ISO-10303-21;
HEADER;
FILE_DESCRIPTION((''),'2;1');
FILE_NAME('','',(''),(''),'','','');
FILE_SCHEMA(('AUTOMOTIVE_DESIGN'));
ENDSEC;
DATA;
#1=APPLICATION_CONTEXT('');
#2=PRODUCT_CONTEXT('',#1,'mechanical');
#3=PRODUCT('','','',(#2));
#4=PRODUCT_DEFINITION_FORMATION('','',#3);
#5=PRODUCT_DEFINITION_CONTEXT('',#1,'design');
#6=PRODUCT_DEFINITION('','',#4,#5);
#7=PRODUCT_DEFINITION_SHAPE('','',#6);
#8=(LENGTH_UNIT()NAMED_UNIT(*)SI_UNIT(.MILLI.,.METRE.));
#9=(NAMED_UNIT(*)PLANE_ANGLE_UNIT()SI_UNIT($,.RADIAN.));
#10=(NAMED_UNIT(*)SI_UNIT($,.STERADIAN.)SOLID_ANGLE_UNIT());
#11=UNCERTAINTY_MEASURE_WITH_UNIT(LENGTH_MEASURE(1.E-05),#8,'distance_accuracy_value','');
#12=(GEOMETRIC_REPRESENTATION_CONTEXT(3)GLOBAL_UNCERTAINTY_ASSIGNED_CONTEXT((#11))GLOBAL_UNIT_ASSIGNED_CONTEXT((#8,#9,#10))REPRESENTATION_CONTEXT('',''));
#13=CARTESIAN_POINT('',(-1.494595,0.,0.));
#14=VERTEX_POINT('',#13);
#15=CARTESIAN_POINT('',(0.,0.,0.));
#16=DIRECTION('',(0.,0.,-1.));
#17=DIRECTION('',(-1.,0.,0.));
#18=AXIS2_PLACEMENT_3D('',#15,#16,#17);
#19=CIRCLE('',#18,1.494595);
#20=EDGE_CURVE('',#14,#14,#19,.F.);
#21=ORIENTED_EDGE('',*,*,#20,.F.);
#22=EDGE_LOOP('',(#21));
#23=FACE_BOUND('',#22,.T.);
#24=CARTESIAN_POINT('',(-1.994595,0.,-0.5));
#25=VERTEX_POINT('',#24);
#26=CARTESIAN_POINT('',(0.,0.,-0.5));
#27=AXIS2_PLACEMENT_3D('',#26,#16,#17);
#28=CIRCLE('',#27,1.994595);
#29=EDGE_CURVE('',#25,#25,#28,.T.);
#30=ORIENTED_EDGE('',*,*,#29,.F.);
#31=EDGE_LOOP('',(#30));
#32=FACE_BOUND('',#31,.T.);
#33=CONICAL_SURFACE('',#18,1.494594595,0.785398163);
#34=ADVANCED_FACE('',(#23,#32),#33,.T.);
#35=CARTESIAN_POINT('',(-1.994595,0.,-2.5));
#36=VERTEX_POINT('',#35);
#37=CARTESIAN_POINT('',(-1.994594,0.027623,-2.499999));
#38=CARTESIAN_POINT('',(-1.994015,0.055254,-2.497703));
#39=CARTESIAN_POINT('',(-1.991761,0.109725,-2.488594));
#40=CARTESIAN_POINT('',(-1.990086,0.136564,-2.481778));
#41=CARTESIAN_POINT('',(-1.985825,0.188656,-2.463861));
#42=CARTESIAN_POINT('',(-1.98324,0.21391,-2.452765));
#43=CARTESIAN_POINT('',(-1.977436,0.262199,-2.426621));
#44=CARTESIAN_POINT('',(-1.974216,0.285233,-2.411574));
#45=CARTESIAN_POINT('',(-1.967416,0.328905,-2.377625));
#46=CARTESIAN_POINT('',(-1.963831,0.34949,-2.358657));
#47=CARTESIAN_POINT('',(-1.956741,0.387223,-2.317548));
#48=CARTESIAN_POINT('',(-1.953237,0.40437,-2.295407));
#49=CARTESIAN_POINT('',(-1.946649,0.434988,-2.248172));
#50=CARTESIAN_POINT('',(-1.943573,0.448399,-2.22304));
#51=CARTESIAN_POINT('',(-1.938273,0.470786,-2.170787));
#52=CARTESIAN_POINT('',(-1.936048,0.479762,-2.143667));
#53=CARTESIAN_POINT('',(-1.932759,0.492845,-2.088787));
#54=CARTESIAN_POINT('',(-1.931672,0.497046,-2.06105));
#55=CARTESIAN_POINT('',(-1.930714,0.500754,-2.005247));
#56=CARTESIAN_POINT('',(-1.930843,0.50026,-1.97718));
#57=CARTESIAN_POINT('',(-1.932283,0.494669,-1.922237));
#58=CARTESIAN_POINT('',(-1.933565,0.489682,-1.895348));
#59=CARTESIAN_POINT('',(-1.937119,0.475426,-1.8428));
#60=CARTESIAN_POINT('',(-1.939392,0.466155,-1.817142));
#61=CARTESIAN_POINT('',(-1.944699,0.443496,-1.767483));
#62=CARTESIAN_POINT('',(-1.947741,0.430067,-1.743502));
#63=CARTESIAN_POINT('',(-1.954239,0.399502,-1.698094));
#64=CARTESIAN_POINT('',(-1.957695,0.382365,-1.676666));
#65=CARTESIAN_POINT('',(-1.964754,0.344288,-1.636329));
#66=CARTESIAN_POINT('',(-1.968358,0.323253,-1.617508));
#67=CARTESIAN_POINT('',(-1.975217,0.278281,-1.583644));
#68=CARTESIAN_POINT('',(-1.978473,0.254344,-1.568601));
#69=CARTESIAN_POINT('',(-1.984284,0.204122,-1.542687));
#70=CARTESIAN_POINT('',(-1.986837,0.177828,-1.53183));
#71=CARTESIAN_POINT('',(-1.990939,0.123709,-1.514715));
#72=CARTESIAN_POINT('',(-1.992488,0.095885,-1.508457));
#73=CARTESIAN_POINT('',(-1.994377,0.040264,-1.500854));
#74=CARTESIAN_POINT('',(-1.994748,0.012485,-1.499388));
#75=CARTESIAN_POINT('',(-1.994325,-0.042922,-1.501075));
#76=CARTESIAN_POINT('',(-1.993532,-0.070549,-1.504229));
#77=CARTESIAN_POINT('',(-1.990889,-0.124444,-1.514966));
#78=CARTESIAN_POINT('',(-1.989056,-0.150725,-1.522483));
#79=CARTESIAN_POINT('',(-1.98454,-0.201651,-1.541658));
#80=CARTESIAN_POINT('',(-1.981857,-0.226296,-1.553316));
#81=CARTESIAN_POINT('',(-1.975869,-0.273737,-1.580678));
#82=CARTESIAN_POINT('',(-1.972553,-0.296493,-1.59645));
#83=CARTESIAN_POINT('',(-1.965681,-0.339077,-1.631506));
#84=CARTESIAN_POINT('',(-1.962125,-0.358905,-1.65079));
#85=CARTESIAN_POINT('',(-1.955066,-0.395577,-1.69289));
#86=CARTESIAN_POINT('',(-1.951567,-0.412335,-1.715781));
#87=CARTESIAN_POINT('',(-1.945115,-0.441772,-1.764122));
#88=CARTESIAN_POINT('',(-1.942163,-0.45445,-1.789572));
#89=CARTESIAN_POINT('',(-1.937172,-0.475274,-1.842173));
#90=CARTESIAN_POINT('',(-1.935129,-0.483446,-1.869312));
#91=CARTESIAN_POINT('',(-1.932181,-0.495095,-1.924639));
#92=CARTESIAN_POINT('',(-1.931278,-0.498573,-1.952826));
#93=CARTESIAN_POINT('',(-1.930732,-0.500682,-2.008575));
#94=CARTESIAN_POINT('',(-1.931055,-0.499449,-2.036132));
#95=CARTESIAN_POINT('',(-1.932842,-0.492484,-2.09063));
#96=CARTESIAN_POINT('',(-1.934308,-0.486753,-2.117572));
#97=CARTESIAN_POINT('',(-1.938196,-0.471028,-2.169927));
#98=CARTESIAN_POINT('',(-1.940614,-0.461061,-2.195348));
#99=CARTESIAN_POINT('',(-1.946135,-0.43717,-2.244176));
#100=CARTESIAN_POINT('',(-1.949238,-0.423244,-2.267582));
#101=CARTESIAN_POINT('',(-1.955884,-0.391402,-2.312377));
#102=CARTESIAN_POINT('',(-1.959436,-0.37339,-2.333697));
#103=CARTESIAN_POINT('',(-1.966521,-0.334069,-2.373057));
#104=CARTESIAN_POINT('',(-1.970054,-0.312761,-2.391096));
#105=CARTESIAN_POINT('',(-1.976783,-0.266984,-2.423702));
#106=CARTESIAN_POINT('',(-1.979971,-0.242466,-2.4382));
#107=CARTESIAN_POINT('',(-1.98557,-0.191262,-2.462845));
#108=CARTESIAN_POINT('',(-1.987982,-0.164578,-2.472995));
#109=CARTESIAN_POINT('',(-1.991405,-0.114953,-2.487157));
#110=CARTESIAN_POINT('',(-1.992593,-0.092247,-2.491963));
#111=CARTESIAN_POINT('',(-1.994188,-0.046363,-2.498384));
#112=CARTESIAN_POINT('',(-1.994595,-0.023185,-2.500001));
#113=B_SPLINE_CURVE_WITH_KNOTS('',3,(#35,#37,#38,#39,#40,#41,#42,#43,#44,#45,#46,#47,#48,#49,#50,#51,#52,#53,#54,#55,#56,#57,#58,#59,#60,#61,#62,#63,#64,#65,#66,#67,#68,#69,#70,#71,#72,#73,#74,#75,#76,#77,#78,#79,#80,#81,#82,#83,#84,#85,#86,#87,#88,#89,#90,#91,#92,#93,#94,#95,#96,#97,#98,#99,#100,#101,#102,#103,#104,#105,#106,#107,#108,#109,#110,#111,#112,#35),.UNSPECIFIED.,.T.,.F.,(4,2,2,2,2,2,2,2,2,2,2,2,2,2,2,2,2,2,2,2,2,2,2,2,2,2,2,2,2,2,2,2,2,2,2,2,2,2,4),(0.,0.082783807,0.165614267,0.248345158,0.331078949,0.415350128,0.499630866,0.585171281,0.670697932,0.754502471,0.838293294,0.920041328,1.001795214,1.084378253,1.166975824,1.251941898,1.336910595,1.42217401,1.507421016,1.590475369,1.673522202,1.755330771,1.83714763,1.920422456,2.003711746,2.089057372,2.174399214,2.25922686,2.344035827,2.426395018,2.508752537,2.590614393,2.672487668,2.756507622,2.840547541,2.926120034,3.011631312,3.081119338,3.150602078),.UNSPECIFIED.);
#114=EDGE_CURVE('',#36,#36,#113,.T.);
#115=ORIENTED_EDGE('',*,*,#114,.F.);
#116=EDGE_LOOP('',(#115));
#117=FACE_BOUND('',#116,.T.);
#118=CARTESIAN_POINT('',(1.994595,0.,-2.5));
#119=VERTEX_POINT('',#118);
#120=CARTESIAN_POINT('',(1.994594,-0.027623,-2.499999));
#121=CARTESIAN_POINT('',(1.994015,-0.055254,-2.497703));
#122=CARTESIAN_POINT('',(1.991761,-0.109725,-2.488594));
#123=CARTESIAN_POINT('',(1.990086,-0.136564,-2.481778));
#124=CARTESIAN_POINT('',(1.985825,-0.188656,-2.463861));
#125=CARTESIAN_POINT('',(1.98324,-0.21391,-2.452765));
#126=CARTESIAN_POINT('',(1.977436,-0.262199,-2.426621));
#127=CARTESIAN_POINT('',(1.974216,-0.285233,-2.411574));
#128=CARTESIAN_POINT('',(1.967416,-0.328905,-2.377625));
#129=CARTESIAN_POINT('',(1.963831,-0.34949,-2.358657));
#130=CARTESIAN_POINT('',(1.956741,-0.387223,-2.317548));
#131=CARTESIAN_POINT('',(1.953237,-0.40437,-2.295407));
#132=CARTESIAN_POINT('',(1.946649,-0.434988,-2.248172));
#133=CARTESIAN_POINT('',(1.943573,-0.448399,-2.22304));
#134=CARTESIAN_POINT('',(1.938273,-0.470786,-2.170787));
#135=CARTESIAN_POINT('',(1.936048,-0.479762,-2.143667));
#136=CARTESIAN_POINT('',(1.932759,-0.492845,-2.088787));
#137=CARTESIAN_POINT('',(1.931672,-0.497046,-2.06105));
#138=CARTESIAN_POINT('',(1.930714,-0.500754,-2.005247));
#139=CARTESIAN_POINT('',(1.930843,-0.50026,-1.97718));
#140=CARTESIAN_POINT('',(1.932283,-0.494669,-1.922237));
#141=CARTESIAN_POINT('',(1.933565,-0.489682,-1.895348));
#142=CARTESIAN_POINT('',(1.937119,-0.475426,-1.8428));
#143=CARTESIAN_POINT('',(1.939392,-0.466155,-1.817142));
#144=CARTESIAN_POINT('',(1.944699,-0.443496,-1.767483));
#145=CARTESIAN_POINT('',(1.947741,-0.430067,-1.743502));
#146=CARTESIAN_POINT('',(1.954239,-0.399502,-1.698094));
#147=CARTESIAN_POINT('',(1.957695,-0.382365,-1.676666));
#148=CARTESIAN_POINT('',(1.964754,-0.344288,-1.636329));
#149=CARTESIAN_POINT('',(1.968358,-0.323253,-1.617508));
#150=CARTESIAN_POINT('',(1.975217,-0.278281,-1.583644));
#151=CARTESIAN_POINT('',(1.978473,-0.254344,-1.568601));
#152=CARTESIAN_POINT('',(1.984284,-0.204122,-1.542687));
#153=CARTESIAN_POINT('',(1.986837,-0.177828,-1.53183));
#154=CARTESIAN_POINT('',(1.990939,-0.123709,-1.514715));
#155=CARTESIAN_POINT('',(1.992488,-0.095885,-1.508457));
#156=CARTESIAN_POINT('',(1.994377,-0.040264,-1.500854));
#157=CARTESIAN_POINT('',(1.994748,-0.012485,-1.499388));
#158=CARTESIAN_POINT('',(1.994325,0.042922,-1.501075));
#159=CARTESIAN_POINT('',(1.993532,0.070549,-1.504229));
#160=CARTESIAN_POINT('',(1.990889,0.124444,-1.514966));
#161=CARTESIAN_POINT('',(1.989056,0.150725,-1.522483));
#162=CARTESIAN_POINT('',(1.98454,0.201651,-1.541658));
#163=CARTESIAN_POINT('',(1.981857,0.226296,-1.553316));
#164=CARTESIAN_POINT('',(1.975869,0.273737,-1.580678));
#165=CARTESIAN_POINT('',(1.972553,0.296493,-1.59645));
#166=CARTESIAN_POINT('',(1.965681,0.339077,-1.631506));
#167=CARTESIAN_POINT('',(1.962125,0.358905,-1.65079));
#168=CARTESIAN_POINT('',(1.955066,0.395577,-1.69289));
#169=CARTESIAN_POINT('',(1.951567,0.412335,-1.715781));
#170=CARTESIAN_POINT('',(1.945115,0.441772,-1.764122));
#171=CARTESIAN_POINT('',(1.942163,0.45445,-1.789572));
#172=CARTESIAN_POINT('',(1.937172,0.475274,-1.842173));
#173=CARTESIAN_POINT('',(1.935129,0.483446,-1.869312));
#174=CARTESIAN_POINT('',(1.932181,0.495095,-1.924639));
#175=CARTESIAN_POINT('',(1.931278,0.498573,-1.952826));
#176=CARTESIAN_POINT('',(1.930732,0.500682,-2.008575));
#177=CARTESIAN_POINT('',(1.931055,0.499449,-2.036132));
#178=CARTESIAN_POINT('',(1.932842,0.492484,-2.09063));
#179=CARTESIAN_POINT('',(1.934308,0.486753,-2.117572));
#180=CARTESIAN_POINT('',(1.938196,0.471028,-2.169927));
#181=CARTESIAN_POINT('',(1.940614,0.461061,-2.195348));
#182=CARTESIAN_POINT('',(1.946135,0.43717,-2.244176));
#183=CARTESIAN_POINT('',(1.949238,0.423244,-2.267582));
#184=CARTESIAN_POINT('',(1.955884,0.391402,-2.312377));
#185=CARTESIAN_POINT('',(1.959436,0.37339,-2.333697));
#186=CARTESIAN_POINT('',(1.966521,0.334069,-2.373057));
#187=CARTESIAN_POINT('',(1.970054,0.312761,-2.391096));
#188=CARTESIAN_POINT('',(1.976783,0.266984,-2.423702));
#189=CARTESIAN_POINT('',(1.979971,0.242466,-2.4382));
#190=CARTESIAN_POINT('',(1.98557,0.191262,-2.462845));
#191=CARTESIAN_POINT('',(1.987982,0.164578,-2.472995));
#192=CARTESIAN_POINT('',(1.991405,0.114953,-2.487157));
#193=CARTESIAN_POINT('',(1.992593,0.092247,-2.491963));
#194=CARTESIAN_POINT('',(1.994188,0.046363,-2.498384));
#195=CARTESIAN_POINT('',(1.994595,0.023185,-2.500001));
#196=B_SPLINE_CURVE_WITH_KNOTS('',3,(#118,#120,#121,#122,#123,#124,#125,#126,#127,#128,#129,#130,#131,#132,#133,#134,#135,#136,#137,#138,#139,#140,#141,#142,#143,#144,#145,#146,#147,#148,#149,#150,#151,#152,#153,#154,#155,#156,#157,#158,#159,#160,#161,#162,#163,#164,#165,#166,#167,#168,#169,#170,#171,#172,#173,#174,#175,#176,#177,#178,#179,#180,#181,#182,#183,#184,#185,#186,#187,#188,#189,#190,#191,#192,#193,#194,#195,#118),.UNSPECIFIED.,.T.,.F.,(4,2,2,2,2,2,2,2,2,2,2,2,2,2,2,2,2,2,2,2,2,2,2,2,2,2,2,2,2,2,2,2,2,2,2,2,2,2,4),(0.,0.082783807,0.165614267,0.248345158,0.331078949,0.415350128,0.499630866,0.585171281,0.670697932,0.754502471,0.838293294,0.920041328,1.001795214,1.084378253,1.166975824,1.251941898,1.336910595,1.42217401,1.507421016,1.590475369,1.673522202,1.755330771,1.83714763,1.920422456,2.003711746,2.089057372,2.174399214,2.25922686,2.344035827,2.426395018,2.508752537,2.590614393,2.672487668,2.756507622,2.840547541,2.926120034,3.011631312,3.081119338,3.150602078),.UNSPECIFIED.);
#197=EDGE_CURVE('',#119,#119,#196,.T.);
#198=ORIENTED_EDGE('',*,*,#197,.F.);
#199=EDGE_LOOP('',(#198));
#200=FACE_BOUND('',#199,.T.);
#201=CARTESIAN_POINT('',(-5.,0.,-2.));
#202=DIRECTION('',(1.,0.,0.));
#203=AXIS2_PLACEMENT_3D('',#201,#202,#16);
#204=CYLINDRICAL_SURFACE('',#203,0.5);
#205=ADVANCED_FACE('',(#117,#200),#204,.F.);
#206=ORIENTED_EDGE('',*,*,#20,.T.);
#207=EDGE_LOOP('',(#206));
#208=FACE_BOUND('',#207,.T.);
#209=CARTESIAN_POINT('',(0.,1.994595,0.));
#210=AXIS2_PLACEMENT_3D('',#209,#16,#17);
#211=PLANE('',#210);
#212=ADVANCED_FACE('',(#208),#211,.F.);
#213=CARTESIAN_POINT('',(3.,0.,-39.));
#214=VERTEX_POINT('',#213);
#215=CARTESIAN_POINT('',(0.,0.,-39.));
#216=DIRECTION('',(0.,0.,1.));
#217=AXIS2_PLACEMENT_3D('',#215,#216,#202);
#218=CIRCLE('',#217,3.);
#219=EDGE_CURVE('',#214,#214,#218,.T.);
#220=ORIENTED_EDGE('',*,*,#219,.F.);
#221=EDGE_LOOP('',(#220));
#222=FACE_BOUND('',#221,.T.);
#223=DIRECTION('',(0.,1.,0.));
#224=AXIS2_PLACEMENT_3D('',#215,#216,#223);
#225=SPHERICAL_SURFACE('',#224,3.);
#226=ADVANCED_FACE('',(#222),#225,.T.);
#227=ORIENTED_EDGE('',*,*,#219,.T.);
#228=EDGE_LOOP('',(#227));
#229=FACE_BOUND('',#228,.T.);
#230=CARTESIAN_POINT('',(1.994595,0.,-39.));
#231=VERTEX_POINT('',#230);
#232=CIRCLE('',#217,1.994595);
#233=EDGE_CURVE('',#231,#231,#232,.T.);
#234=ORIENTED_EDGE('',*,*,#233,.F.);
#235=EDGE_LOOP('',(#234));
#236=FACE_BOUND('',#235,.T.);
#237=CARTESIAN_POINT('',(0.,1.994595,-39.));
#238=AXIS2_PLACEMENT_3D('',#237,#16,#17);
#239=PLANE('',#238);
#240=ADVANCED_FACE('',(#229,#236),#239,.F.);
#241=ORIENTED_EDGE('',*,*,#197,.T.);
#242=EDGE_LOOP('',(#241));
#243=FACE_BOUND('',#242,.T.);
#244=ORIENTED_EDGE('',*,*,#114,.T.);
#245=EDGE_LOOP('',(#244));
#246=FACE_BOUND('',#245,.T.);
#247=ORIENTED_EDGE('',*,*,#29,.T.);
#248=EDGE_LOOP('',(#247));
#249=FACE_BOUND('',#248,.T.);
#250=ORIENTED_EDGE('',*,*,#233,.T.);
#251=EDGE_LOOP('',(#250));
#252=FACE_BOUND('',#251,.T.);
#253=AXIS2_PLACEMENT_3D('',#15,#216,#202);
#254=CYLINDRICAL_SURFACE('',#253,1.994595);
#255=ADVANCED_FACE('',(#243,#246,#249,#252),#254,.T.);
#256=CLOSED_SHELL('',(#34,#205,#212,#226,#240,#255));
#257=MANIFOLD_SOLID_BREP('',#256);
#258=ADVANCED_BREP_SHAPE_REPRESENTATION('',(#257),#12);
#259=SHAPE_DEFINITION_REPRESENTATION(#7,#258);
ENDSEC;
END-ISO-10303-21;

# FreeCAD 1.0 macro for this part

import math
import FreeCAD as App
import Part
import Sketcher
Q = App.Units.Quantity


def edges_at(feature, points):
    """Names of the edges that pass closest to the given points."""
    edges = feature.Shape.Edges
    near = lambda p: min(range(len(edges)), key=lambda i: edges[i].distToShape(Part.Vertex(*p))[0])
    return sorted({f"Edge{near(p) + 1}" for p in points})

doc = App.newDocument("Part")
body = doc.addObject("PartDesign::Body", "Body")

# Sketch on YZ plane
sketch1 = body.newObject("Sketcher::SketchObject", "Sketch")
sketch1.AttachmentSupport = (doc.getObject("YZ_Plane"), [""])
sketch1.MapMode = "FlatFace"
sketch1.addGeometry(Part.LineSegment(App.Vector(1.994595, -39, 0), App.Vector(1.994595, 0, 0)), False)
sketch1.addGeometry(Part.LineSegment(App.Vector(1.994595, 0, 0), App.Vector(0, 0, 0)), False)
sketch1.addGeometry(Part.LineSegment(App.Vector(0, 0, 0), App.Vector(0, -42, 0)), False)
sketch1.addGeometry(Part.ArcOfCircle(Part.Circle(App.Vector(0, -39, 0), App.Vector(0, 0, 1), 3), math.radians(-90), math.radians(0)), False)
sketch1.addGeometry(Part.LineSegment(App.Vector(3, -39, 0), App.Vector(1.994595, -39, 0)), False)
sketch1.addConstraint(Sketcher.Constraint("Coincident", 0, 2, 1, 1))
sketch1.addConstraint(Sketcher.Constraint("Coincident", 1, 2, 2, 1))
sketch1.addConstraint(Sketcher.Constraint("Coincident", 2, 2, 3, 1))
sketch1.addConstraint(Sketcher.Constraint("Coincident", 3, 2, 4, 1))
sketch1.addConstraint(Sketcher.Constraint("Coincident", 4, 2, 0, 1))
sketch1.addConstraint(Sketcher.Constraint("Vertical", 0))
sketch1.addConstraint(Sketcher.Constraint("Horizontal", 1))
sketch1.addConstraint(Sketcher.Constraint("Vertical", 2))
sketch1.addConstraint(Sketcher.Constraint("Horizontal", 4))
sketch1.addConstraint(Sketcher.Constraint("Coincident", 1, 2, -1, 1))
sketch1.addConstraint(Sketcher.Constraint("PointOnObject", 3, 3, -2))
sketch1.addConstraint(Sketcher.Constraint("Radius", 3, Q("3 mm")))
sketch1.addConstraint(Sketcher.Constraint("DistanceY", 0, 1, 0, 2, Q("39 mm")))
sketch1.addConstraint(Sketcher.Constraint("DistanceY", 2, 2, 2, 1, Q("42 mm")))
sketch1.addConstraint(Sketcher.Constraint("DistanceX", 1, 2, 1, 1, Q("1.994595 mm")))
revolution = body.newObject("PartDesign::Revolution", "Revolution")
revolution.Profile = sketch1
revolution.ReferenceAxis = (sketch1, ["V_Axis"])
revolution.Angle = 360

# Sketch on YZ plane
sketch2 = body.newObject("Sketcher::SketchObject", "Sketch001")
sketch2.AttachmentSupport = (doc.getObject("YZ_Plane"), [""])
sketch2.MapMode = "FlatFace"
sketch2.addGeometry(Part.Circle(App.Vector(0, -2, 0), App.Vector(0, 0, 1), 0.5), False)
sketch2.addConstraint(Sketcher.Constraint("PointOnObject", 0, 3, -2))
sketch2.addConstraint(Sketcher.Constraint("Diameter", 0, Q("1 mm")))
sketch2.addConstraint(Sketcher.Constraint("DistanceY", 0, 3, -1, 1, Q("2 mm")))
pocket1 = body.newObject("PartDesign::Pocket", "Pocket")
pocket1.Profile = sketch2
pocket1.Length = 10
pocket1.Midplane = True
doc.recompute()

chamfer = body.newObject("PartDesign::Chamfer", "Chamfer")
chamfer.Base = (pocket1, edges_at(pocket1, [(-1.995, 0, 0)]))
chamfer.Size = 0.5

doc.recompute()
